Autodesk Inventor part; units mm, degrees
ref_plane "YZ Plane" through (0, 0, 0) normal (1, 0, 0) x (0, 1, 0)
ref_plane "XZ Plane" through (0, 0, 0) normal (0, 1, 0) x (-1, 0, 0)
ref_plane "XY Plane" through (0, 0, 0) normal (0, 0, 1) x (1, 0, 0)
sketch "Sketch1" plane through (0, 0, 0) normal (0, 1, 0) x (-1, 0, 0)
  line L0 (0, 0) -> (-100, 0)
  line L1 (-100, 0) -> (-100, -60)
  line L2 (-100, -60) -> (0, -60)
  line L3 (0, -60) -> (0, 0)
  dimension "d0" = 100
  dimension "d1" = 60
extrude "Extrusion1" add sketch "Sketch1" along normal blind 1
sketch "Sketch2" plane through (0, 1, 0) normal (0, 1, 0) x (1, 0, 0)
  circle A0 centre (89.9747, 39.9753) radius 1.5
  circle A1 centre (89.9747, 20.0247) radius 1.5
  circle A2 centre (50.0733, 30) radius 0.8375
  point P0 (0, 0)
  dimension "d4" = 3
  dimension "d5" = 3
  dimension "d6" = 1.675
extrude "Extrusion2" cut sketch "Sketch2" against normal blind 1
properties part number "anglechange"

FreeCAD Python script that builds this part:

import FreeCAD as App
import Part
import Sketcher
Q = App.Units.Quantity

doc = App.newDocument("Part")
body = doc.addObject("PartDesign::Body", "Body")

sketch1 = doc.addObject("Sketcher::SketchObject", "Sketch")
body.addObject(sketch1)
sketch1.AttachmentSupport = (doc.XZ_Plane, [""])
sketch1.MapMode = "FlatFace"
sketch1.addGeometry(Part.LineSegment(App.Vector(0, -60, 0), App.Vector(0, 0, 0)), False)
sketch1.addGeometry(Part.LineSegment(App.Vector(0, 0, 0), App.Vector(100, 0, 0)), False)
sketch1.addGeometry(Part.LineSegment(App.Vector(100, 0, 0), App.Vector(100, -60, 0)), False)
sketch1.addGeometry(Part.LineSegment(App.Vector(100, -60, 0), App.Vector(0, -60, 0)), False)
sketch1.addConstraint(Sketcher.Constraint("Coincident", 0, 2, 1, 1))
sketch1.addConstraint(Sketcher.Constraint("Coincident", 1, 2, 2, 1))
sketch1.addConstraint(Sketcher.Constraint("Coincident", 2, 2, 3, 1))
sketch1.addConstraint(Sketcher.Constraint("Coincident", 3, 2, 0, 1))
sketch1.addConstraint(Sketcher.Constraint("Vertical", 0))
sketch1.addConstraint(Sketcher.Constraint("Horizontal", 1))
sketch1.addConstraint(Sketcher.Constraint("Vertical", 2))
sketch1.addConstraint(Sketcher.Constraint("Horizontal", 3))
sketch1.addConstraint(Sketcher.Constraint("Coincident", 0, 2, -1, 1))
sketch1.addConstraint(Sketcher.Constraint("DistanceX", 1, 1, 1, 2, Q("100 mm")))
sketch1.addConstraint(Sketcher.Constraint("DistanceY", 0, 1, 0, 2, Q("60 mm")))
pad1 = doc.addObject("PartDesign::Pad", "Pad")
body.addObject(pad1)
pad1.Profile = sketch1
pad1.Length = 1
pad1.Reversed = True

sketch2 = doc.addObject("Sketcher::SketchObject", "Sketch001")
body.addObject(sketch2)
sketch2.AttachmentSupport = (doc.XZ_Plane, [""])
sketch2.MapMode = "FlatFace"
sketch2.AttachmentOffset = App.Placement(App.Vector(0, 0, -1), App.Rotation())
sketch2.addGeometry(Part.Circle(App.Vector(90, -40, 0), App.Vector(0, 0, 1), 1.5), False)
sketch2.addGeometry(Part.Circle(App.Vector(90, -20, 0), App.Vector(0, 0, 1), 1.5), False)
sketch2.addGeometry(Part.Circle(App.Vector(50.1, -30, 0), App.Vector(0, 0, 1), 0.8), False)
sketch2.addConstraint(Sketcher.Constraint("Equal", 0, 1))
sketch2.addConstraint(Sketcher.Constraint("Vertical", 0, 3, 1, 3))
sketch2.addConstraint(Sketcher.Constraint("Diameter", 0, Q("3 mm")))
sketch2.addConstraint(Sketcher.Constraint("Diameter", 2, Q("1.675 mm")))
sketch2.addConstraint(Sketcher.Constraint("DistanceY", 2, 3, -1, 1, Q("30 mm")))
sketch2.addConstraint(Sketcher.Constraint("DistanceX", -1, 1, 0, 3, Q("89.9747 mm")))
sketch2.addConstraint(Sketcher.Constraint("DistanceY", 0, 3, -1, 1, Q("39.9753 mm")))
sketch2.addConstraint(Sketcher.Constraint("DistanceY", 1, 3, -1, 1, Q("20.0247 mm")))
sketch2.addConstraint(Sketcher.Constraint("DistanceX", -1, 1, 2, 3, Q("50.0733 mm")))
pocket1 = doc.addObject("PartDesign::Pocket", "Pocket")
body.addObject(pocket1)
pocket1.Profile = sketch2
pocket1.Length = 1
pocket1.Reversed = True

doc.recompute()
